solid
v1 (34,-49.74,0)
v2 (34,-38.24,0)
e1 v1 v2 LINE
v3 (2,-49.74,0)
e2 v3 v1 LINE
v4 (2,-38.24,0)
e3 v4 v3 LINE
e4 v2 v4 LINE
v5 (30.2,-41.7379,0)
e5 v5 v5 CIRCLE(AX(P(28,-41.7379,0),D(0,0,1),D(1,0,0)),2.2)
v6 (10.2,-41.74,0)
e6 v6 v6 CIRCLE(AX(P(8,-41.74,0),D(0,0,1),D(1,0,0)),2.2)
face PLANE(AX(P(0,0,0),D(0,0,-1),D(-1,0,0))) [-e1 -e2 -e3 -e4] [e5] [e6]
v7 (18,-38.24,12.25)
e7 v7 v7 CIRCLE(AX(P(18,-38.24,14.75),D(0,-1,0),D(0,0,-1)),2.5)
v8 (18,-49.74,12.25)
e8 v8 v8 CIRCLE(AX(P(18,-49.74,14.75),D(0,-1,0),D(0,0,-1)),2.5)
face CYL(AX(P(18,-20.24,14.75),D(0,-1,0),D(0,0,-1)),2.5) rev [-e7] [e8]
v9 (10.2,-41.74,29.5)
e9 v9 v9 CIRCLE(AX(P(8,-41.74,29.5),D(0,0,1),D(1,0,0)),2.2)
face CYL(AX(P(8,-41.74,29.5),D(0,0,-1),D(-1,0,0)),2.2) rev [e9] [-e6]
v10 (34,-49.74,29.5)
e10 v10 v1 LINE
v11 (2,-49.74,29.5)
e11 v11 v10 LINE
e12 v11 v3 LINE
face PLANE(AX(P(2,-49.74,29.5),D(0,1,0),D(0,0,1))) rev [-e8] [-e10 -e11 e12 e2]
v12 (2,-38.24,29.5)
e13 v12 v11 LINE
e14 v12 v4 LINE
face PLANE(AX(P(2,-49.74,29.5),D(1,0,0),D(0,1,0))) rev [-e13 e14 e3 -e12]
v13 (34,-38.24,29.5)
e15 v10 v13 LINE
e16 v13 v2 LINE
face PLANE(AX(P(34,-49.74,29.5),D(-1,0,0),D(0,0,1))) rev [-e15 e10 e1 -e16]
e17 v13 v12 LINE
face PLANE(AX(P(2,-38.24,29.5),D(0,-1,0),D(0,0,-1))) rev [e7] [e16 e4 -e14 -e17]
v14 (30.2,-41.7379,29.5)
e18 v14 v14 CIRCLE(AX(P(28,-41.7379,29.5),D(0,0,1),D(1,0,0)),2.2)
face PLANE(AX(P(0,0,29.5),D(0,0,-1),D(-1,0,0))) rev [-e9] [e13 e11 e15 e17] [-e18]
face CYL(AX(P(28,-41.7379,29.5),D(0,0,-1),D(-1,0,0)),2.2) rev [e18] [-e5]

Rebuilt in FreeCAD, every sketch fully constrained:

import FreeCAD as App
import Part
import Sketcher

V = App.Vector
Q = App.Units.Quantity

doc = App.newDocument("Part")
body = doc.addObject("PartDesign::Body", "Body")

# Sketch on XY plane
sketch1 = body.newObject("Sketcher::SketchObject", "Sketch")
sketch1.AttachmentSupport = (doc.getObject("XY_Plane"), [""])
sketch1.MapMode = "FlatFace"
sketch1.addGeometry(Part.LineSegment(V(2, -38.2, 0), V(2, -49.7, 0)), False)
sketch1.addGeometry(Part.LineSegment(V(2, -49.7, 0), V(34, -49.7, 0)), False)
sketch1.addGeometry(Part.LineSegment(V(34, -49.7, 0), V(34, -38.2, 0)), False)
sketch1.addGeometry(Part.LineSegment(V(34, -38.2, 0), V(2, -38.2, 0)), False)
sketch1.addGeometry(Part.Circle(V(8, -41.7, 0), V(0, 0, 1), 2.2), False)
sketch1.addGeometry(Part.Circle(V(28, -41.7, 0), V(0, 0, 1), 2.2), False)
sketch1.addConstraint(Sketcher.Constraint("Coincident", 0, 2, 1, 1))
sketch1.addConstraint(Sketcher.Constraint("Coincident", 1, 2, 2, 1))
sketch1.addConstraint(Sketcher.Constraint("Coincident", 2, 2, 3, 1))
sketch1.addConstraint(Sketcher.Constraint("Coincident", 3, 2, 0, 1))
sketch1.addConstraint(Sketcher.Constraint("Vertical", 0))
sketch1.addConstraint(Sketcher.Constraint("Horizontal", 1))
sketch1.addConstraint(Sketcher.Constraint("Vertical", 2))
sketch1.addConstraint(Sketcher.Constraint("Horizontal", 3))
sketch1.addConstraint(Sketcher.Constraint("Equal", 4, 5))
sketch1.addConstraint(Sketcher.Constraint("Diameter", 4, Q("4.4 mm")))
sketch1.addConstraint(Sketcher.Constraint("DistanceX", 1, 1, 1, 2, Q("32 mm")))
sketch1.addConstraint(Sketcher.Constraint("DistanceY", 0, 2, 0, 1, Q("11.5 mm")))
sketch1.addConstraint(Sketcher.Constraint("DistanceX", -1, 1, 4, 3, Q("8 mm")))
sketch1.addConstraint(Sketcher.Constraint("DistanceX", -1, 1, 5, 3, Q("28 mm")))
sketch1.addConstraint(Sketcher.Constraint("DistanceX", -1, 1, 0, 2, Q("2 mm")))
sketch1.addConstraint(Sketcher.Constraint("DistanceY", 0, 2, 4, 3, Q("8 mm")))
sketch1.addConstraint(Sketcher.Constraint("DistanceY", 4, 3, -1, 1, Q("41.74 mm")))
sketch1.addConstraint(Sketcher.Constraint("DistanceY", 5, 3, -1, 1, Q("41.7379 mm")))
pad1 = body.newObject("PartDesign::Pad", "Pad")
pad1.Profile = sketch1
pad1.Length = 29.5

# Sketch on XZ plane
sketch2 = body.newObject("Sketcher::SketchObject", "Sketch001")
sketch2.AttachmentSupport = (doc.getObject("XZ_Plane"), [""])
sketch2.MapMode = "FlatFace"
sketch2.AttachmentOffset = App.Placement(V(0, 0, 49.74), App.Rotation())
sketch2.addGeometry(Part.Circle(V(18, 14.8, 0), V(0, 0, 1), 2.5), False)
sketch2.addConstraint(Sketcher.Constraint("Diameter", 0, Q("5 mm")))
sketch2.addConstraint(Sketcher.Constraint("DistanceX", -1, 1, 0, 3, Q("18 mm")))
sketch2.addConstraint(Sketcher.Constraint("DistanceY", -1, 1, 0, 3, Q("14.75 mm")))
pocket1 = body.newObject("PartDesign::Pocket", "Pocket")
pocket1.Profile = sketch2
pocket1.Length = 29.5

doc.recompute()
